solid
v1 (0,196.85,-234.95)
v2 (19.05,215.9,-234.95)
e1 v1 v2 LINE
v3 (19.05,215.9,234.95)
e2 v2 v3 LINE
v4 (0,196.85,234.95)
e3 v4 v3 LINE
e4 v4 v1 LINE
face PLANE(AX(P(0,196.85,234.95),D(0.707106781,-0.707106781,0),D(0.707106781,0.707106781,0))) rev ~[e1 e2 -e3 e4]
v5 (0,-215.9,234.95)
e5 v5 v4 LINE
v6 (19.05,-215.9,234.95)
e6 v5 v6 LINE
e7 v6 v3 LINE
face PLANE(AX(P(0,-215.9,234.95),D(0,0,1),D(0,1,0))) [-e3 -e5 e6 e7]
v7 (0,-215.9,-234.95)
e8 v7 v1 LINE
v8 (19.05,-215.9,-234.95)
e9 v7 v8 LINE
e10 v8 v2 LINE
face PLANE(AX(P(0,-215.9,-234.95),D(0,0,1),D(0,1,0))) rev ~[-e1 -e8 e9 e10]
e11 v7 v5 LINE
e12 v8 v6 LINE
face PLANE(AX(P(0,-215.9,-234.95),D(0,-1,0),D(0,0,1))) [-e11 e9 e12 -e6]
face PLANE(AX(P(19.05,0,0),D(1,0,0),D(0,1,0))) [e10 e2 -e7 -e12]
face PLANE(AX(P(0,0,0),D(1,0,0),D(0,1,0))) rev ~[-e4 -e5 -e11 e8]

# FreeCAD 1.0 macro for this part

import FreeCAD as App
import Part
import Sketcher
from FreeCAD import Vector
Q = App.Units.Quantity


def add_polygon(sketch, points):
    """Adds a closed chain of lines whose ends are joined by coincident constraints."""
    first, n = sketch.GeometryCount, len(points)
    for a, b in zip(points, points[1:] + points[:1]):
        sketch.addGeometry(Part.LineSegment(App.Vector(*a, 0), App.Vector(*b, 0)), False)
    for i in range(n):
        sketch.addConstraint(Sketcher.Constraint("Coincident", first + i, 2, first + (i + 1) % n, 1))

doc = App.newDocument("Part")
body = doc.addObject("PartDesign::Body", "Body")

sketch1 = doc.addObject("Sketcher::SketchObject", "Sketch")
body.addObject(sketch1)
sketch1.AttachmentSupport = (doc.YZ_Plane, [""])
sketch1.MapMode = "FlatFace"
add_polygon(sketch1, [(-216, 235), (-216, -235), (216, -235), (216, 235)])
sketch1.addConstraint(Sketcher.Constraint("Vertical", 0))
sketch1.addConstraint(Sketcher.Constraint("Horizontal", 1))
sketch1.addConstraint(Sketcher.Constraint("Vertical", 2))
sketch1.addConstraint(Sketcher.Constraint("Horizontal", 3))
sketch1.addConstraint(Sketcher.Constraint("Symmetric", 0, 2, 2, 2, -1, 1))
sketch1.addConstraint(Sketcher.Constraint("DistanceX", 1, 1, 1, 2, Q("17 in")))
sketch1.addConstraint(Sketcher.Constraint("DistanceY", 0, 2, 0, 1, Q("18.5 in")))
pad1 = doc.addObject("PartDesign::Pad", "Pad")
body.addObject(pad1)
pad1.Profile = sketch1
pad1.Length = Q("0.75 in")

sketch2 = doc.addObject("Sketcher::SketchObject", "Sketch001")
body.addObject(sketch2)
sketch2.AttachmentSupport = (doc.XY_Plane, [""])
sketch2.MapMode = "FlatFace"
sketch2.AttachmentOffset = App.Placement(Vector(0, 0, 9.25 * 25.4), App.Rotation())
add_polygon(sketch2, [(0, 197), (19, 216), (0, 216)])
sketch2.addConstraint(Sketcher.Constraint("Horizontal", 1))
sketch2.addConstraint(Sketcher.Constraint("Vertical", 2))
sketch2.addConstraint(Sketcher.Constraint("PointOnObject", 1, 2, -2))
sketch2.addConstraint(Sketcher.Constraint("Equal", 1, 2))
sketch2.addConstraint(Sketcher.Constraint("DistanceX", 1, 2, 1, 1, Q("0.75 in")))
sketch2.addConstraint(Sketcher.Constraint("DistanceY", -1, 1, 0, 2, Q("8.5 in")))
pocket1 = doc.addObject("PartDesign::Pocket", "Pocket")
body.addObject(pocket1)
pocket1.Profile = sketch2
pocket1.Type = "ThroughAll"

doc.recompute()
